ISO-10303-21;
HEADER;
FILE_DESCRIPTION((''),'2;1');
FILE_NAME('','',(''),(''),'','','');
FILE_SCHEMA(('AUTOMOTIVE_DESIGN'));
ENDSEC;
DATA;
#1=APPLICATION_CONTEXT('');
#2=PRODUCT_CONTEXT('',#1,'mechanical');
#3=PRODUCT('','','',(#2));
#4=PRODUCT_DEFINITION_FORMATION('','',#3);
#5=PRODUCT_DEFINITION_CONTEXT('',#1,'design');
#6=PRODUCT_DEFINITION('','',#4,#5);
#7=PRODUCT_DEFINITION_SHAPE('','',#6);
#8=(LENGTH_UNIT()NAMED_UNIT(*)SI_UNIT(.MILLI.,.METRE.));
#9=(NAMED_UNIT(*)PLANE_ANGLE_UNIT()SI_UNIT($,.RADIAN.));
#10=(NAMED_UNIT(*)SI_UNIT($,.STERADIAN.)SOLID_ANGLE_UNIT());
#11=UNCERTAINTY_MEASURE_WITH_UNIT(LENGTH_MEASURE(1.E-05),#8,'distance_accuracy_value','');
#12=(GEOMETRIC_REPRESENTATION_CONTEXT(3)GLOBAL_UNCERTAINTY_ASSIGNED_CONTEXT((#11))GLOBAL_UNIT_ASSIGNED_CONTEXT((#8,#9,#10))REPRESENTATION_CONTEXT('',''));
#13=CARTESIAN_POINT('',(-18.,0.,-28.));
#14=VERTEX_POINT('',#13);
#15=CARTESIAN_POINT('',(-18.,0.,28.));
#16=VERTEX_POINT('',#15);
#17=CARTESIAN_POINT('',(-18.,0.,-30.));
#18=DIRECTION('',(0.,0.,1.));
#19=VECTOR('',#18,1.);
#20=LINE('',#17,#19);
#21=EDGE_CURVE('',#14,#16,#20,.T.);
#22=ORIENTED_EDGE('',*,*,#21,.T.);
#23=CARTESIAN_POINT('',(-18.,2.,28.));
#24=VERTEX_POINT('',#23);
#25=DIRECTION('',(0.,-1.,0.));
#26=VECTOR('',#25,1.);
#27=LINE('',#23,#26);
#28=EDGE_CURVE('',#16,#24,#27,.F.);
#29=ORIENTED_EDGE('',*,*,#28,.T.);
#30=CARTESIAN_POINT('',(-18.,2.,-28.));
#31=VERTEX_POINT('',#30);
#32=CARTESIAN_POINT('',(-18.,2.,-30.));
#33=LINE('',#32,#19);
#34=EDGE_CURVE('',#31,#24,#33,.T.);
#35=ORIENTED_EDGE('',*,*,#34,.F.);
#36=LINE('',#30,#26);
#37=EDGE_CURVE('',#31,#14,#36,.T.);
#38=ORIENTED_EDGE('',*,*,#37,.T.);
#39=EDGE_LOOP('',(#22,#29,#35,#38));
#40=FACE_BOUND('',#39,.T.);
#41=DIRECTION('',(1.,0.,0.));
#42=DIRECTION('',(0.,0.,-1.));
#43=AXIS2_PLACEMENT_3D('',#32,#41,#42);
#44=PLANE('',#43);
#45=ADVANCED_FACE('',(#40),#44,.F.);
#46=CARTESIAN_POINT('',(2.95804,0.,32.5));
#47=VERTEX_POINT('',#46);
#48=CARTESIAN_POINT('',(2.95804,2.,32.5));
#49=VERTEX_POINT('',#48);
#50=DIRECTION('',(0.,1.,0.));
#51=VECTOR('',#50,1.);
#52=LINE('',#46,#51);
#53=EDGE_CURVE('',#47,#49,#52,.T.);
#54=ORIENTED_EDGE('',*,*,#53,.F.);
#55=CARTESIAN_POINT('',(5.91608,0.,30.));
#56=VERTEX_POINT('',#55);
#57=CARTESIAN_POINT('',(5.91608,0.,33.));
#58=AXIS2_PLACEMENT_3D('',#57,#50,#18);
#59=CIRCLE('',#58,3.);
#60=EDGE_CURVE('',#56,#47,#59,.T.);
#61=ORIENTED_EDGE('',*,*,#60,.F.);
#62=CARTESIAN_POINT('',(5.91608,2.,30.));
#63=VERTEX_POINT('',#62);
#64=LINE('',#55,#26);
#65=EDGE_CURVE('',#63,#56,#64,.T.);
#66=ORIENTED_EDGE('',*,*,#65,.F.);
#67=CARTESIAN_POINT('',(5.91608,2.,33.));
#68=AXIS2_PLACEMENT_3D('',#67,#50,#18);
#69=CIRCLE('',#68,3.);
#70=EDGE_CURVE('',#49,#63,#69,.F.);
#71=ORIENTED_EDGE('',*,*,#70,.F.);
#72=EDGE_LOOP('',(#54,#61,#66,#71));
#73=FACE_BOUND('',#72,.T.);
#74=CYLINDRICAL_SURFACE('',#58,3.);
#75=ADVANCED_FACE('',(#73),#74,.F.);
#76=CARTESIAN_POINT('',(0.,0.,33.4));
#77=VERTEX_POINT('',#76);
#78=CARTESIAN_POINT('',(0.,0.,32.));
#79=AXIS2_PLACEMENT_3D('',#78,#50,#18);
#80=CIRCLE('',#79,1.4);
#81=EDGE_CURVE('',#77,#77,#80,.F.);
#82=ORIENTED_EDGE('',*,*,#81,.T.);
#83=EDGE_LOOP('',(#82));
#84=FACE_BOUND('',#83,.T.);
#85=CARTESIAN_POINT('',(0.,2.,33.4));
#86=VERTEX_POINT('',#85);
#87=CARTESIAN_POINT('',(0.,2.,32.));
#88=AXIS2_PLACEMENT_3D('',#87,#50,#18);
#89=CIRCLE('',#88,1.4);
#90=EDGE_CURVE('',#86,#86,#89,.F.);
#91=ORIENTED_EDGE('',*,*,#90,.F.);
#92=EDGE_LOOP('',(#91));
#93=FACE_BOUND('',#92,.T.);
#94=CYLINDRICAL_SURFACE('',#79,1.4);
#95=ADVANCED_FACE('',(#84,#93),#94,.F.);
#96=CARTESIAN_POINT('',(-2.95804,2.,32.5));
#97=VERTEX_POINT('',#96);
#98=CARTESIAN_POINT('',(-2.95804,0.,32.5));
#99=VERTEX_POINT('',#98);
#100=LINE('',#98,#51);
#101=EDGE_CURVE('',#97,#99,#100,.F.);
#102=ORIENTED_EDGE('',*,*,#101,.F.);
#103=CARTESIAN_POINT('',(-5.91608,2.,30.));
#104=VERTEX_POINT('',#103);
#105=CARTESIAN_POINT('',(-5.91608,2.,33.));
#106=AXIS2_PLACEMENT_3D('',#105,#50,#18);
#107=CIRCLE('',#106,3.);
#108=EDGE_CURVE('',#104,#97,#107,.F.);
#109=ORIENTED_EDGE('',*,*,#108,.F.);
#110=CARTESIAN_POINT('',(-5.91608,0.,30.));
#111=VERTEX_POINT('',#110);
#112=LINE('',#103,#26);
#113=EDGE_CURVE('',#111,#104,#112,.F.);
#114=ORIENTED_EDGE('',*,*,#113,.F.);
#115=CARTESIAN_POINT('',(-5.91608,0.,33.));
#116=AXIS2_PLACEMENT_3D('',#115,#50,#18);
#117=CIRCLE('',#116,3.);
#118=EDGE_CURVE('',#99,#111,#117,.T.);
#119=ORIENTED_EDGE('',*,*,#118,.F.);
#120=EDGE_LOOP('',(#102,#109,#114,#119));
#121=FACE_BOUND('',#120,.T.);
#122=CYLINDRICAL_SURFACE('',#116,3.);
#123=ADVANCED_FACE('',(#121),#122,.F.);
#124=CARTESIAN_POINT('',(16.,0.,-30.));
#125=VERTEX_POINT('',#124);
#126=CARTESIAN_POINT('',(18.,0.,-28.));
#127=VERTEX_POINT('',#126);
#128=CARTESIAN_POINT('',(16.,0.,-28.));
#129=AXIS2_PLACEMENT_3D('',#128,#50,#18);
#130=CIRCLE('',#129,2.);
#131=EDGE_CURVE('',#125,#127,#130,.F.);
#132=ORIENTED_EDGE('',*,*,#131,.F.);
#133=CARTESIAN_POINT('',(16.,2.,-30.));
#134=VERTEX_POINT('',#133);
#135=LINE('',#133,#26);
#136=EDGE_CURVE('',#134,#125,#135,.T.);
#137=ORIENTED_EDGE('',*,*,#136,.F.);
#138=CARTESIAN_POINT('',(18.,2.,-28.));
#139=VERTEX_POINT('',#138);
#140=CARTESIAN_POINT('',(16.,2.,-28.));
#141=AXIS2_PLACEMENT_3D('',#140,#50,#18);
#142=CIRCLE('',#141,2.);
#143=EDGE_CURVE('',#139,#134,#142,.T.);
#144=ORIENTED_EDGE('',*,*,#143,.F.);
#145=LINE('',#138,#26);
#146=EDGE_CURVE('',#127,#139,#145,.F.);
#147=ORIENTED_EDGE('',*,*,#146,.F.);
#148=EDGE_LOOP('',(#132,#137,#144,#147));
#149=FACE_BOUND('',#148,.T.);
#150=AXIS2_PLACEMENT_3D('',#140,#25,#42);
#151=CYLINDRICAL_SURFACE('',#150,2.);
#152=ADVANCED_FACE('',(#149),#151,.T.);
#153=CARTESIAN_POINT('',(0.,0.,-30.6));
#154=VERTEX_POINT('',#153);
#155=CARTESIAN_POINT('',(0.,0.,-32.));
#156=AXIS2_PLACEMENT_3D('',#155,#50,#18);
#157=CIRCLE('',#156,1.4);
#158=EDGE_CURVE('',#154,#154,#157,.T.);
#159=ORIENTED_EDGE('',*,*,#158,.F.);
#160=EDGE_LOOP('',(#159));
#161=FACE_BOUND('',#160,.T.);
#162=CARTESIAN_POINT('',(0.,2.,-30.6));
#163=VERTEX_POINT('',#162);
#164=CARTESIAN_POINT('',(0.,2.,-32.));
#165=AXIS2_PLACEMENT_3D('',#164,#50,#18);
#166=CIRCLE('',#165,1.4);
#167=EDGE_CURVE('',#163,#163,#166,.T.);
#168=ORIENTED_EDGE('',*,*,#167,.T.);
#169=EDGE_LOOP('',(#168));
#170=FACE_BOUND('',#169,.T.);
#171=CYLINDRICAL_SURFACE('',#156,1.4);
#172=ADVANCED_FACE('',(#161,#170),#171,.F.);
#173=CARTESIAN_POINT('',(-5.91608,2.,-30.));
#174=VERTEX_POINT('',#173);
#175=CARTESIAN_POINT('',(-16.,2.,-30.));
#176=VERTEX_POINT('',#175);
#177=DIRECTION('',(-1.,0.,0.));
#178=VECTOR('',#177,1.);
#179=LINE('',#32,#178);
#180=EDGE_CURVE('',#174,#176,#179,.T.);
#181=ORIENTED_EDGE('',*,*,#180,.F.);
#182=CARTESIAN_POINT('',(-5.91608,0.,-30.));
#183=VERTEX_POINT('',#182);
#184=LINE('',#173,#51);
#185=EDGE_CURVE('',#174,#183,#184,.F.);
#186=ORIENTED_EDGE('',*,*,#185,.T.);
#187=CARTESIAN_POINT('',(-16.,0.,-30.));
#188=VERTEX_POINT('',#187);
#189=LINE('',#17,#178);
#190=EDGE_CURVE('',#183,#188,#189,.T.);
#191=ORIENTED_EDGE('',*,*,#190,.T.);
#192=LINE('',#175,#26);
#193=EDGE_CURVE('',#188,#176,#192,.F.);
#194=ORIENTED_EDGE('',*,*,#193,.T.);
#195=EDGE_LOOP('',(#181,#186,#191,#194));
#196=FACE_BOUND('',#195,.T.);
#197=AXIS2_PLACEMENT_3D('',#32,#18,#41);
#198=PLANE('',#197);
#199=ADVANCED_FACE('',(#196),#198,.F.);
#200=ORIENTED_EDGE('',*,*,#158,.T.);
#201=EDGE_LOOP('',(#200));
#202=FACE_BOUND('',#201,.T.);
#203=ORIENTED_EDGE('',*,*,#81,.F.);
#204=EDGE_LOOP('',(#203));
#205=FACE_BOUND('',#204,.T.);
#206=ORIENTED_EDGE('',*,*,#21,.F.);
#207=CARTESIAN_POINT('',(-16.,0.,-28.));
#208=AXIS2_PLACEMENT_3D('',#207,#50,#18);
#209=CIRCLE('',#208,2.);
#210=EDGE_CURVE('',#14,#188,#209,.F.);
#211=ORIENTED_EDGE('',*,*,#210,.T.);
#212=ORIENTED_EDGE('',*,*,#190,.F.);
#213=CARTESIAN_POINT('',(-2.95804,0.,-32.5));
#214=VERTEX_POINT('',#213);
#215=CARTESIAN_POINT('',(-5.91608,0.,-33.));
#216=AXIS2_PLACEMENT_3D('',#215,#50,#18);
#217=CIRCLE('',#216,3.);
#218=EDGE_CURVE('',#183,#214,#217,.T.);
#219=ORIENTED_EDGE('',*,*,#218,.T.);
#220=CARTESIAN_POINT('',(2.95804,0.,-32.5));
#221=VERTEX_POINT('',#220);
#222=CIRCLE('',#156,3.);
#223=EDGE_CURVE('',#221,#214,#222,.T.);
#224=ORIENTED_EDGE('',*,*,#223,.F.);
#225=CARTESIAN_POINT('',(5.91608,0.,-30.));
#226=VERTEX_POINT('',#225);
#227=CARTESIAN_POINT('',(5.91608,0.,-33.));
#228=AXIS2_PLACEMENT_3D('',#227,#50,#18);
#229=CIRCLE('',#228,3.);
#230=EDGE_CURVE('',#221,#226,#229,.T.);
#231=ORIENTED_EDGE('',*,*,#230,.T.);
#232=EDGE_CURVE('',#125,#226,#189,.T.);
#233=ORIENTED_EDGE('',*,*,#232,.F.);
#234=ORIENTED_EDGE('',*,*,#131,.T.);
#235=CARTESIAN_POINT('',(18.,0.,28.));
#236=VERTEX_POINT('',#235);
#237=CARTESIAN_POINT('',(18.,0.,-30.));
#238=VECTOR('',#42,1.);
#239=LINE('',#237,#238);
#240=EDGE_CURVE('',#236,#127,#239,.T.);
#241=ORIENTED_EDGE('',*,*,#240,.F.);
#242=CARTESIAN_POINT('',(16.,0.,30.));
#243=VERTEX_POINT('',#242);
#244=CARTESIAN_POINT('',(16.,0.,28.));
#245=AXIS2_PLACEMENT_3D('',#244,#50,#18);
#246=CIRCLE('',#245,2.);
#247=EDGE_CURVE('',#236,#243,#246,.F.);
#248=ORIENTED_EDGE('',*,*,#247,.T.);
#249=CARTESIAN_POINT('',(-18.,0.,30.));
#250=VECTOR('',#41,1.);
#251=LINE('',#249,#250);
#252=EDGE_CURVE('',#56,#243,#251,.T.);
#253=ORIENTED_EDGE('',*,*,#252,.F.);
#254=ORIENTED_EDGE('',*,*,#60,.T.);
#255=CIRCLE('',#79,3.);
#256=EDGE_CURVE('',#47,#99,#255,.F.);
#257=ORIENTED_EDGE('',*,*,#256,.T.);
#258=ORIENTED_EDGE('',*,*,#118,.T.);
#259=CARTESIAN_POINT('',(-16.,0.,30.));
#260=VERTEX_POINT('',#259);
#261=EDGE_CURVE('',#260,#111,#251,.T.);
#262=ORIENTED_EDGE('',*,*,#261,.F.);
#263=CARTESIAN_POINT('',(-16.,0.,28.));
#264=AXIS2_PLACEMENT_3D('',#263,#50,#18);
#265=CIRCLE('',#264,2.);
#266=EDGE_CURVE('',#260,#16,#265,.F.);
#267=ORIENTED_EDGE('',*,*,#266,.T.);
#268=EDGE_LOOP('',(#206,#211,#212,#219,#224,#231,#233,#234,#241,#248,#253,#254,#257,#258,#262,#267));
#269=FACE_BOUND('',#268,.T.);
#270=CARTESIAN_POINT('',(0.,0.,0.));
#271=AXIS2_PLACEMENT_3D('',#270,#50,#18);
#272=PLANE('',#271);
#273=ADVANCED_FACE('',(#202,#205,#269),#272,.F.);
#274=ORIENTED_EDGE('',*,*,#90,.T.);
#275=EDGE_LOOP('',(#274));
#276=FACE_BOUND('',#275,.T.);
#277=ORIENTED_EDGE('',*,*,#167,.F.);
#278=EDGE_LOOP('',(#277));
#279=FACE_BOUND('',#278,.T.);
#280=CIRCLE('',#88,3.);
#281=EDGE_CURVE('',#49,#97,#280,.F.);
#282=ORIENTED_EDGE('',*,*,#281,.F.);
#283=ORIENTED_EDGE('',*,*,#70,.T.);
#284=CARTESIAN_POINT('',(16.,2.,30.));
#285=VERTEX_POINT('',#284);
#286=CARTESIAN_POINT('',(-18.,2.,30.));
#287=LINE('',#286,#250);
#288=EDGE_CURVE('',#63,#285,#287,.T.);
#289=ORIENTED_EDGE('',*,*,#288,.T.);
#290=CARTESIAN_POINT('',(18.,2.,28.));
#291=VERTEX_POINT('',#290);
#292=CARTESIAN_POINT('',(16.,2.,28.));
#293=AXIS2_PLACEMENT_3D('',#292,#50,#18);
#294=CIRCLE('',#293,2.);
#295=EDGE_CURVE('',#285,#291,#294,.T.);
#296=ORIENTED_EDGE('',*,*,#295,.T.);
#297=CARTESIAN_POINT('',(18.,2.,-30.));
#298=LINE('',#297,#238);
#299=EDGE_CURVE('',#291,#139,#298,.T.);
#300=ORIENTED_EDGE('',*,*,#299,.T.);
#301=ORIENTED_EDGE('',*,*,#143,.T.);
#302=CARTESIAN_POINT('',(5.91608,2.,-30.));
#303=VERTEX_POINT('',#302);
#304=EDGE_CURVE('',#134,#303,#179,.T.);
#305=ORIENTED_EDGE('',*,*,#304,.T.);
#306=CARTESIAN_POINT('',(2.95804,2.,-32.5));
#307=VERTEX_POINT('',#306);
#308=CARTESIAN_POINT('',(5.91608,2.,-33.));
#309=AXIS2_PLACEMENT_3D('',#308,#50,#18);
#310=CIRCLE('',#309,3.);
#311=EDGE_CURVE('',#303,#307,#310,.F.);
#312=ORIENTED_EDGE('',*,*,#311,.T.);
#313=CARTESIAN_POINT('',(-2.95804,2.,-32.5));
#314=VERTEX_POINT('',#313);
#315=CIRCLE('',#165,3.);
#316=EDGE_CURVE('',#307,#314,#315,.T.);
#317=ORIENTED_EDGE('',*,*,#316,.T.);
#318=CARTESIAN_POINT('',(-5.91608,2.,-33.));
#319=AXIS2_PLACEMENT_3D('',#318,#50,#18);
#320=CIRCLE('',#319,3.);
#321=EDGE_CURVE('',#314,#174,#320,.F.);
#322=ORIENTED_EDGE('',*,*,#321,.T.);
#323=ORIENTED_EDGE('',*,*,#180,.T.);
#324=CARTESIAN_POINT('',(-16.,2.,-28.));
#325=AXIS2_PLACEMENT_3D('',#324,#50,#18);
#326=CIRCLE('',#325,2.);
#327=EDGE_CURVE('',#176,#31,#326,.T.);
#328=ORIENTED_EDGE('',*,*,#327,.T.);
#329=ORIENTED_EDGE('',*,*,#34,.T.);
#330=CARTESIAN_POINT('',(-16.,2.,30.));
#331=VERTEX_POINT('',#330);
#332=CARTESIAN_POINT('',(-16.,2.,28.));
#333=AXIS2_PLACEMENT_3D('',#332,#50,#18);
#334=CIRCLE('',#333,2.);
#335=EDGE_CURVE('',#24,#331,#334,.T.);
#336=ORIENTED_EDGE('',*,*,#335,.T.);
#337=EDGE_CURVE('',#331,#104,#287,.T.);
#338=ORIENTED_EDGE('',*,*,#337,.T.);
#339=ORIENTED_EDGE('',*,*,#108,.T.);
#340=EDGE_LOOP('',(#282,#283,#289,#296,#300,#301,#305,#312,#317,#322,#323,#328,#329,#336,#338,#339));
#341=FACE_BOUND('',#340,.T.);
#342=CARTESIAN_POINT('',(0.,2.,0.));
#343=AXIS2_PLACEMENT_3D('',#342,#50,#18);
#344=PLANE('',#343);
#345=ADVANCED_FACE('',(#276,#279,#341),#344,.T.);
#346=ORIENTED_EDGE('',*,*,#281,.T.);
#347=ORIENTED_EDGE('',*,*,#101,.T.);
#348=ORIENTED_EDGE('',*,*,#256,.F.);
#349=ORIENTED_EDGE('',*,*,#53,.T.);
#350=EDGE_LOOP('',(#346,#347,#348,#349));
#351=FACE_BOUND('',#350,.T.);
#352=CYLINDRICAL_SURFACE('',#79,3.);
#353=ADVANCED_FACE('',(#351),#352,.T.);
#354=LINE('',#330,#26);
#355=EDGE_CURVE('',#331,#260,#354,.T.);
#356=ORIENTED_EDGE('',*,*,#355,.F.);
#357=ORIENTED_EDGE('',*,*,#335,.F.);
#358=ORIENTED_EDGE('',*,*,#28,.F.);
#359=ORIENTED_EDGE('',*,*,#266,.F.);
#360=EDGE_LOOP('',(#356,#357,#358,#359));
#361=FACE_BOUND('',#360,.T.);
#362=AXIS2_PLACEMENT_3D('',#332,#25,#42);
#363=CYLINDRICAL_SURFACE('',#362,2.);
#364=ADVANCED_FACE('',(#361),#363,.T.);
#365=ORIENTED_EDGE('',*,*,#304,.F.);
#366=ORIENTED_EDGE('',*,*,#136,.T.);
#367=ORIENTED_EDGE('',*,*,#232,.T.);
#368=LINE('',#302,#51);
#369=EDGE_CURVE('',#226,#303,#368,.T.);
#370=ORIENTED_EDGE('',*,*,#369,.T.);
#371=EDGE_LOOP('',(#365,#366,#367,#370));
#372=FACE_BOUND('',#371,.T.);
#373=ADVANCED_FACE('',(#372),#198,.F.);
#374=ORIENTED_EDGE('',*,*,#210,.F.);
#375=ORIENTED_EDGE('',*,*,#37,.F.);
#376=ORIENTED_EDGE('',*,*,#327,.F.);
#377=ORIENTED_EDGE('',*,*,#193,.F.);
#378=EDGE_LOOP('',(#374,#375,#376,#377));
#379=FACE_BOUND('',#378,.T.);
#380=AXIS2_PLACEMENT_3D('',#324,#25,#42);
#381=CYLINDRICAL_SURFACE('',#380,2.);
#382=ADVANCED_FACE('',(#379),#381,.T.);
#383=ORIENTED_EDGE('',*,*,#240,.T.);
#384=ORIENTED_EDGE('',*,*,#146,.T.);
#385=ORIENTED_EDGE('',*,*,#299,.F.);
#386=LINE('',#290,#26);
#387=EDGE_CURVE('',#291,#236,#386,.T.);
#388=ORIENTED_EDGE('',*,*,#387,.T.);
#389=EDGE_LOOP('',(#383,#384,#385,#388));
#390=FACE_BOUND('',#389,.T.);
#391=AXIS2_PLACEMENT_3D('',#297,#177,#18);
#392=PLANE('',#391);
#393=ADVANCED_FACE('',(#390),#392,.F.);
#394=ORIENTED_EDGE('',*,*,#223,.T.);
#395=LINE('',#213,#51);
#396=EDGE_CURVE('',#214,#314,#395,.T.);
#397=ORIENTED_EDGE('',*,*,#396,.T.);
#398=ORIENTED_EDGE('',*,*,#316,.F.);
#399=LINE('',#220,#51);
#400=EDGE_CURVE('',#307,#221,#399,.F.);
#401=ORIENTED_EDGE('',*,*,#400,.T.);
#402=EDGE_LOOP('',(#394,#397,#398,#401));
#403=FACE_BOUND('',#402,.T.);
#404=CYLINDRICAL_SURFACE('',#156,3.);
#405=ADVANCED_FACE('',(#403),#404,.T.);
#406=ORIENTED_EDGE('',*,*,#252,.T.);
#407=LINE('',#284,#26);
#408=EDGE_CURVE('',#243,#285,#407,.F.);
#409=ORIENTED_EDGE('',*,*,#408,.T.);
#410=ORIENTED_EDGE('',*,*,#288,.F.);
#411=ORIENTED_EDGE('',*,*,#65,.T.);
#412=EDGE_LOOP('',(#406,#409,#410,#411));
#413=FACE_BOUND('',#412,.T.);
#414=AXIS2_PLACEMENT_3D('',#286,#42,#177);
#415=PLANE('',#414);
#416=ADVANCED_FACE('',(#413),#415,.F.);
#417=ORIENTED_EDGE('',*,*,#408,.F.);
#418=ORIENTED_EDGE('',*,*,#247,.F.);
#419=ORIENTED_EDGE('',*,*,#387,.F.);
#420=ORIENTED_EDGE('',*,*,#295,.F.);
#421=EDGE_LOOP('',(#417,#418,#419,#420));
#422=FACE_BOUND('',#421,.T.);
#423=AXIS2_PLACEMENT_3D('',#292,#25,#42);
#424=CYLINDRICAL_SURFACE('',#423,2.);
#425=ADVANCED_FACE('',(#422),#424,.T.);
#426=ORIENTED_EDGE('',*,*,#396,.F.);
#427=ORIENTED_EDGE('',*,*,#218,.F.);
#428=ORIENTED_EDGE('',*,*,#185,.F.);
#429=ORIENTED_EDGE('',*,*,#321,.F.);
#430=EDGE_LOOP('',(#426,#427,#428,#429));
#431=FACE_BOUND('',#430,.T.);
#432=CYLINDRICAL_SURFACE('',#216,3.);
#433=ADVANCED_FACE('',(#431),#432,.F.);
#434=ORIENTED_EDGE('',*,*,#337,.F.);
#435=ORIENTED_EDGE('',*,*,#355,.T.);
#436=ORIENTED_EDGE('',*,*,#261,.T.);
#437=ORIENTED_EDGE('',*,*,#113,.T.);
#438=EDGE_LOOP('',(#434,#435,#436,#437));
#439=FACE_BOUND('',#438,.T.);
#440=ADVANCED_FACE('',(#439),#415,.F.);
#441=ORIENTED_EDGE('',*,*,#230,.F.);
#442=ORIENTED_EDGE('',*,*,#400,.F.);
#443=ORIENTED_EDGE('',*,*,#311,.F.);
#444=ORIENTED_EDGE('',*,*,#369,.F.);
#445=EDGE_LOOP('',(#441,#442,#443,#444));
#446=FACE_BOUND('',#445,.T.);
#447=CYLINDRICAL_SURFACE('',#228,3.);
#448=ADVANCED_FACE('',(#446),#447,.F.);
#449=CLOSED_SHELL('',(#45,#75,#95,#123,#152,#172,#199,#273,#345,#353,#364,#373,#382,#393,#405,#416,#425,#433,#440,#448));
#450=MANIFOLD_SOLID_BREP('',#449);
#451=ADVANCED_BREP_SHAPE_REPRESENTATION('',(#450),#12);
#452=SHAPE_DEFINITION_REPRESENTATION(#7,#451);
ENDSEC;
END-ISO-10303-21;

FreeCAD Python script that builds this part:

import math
import FreeCAD as App
import Part
import Sketcher


def edges_at(feature, points):
    """Names of the edges that pass closest to the given points."""
    edges = feature.Shape.Edges
    near = lambda p: min(range(len(edges)), key=lambda i: edges[i].distToShape(Part.Vertex(*p))[0])
    return sorted({f"Edge{near(p) + 1}" for p in points})


def add_polygon(sketch, points):
    """Adds a closed chain of lines whose ends are joined by coincident constraints."""
    first, n = sketch.GeometryCount, len(points)
    for a, b in zip(points, points[1:] + points[:1]):
        sketch.addGeometry(Part.LineSegment(App.Vector(*a, 0), App.Vector(*b, 0)), False)
    for i in range(n):
        sketch.addConstraint(Sketcher.Constraint("Coincident", first + i, 2, first + (i + 1) % n, 1))

doc = App.newDocument("Part")
body = doc.addObject("PartDesign::Body", "Body")

sketch1 = doc.addObject("Sketcher::SketchObject", "Sketch")
body.addObject(sketch1)
sketch1.AttachmentSupport = (doc.XZ_Plane, [""])
sketch1.MapMode = "FlatFace"
add_polygon(sketch1, [(-18, -30), (-18, 30), (18, 30), (18, -30)])
sketch1.addConstraint([
    Sketcher.Constraint("Vertical", 0),
    Sketcher.Constraint("Horizontal", 1),
    Sketcher.Constraint("Vertical", 2),
    Sketcher.Constraint("Horizontal", 3),
    Sketcher.Constraint("Symmetric", 0, 2, 2, 2, -1, 1),
    Sketcher.Constraint("DistanceX", 1, 1, 1, 2, 36.0),
    Sketcher.Constraint("DistanceY", 0, 1, 0, 2, 60.0),
])
pad1 = doc.addObject("PartDesign::Pad", "Pad")
body.addObject(pad1)
pad1.Profile = sketch1
pad1.Length = 2
pad1.Reversed = True
doc.recompute()

fillet = doc.addObject("PartDesign::Fillet", "Fillet")
body.addObject(fillet)
fillet.Base = (pad1, edges_at(pad1, [
    (-18, 1, -30),
    (18, 1, -30),
    (18, 1, 30),
    (-18, 1, 30),
]))
fillet.Radius = 2

sketch2 = doc.addObject("Sketcher::SketchObject", "Sketch001")
body.addObject(sketch2)
sketch2.AttachmentSupport = (doc.XZ_Plane, [""])
sketch2.MapMode = "FlatFace"
sketch2.AttachmentOffset = App.Placement(App.Vector(0, 0, -2), App.Rotation())
sketch2.addGeometry([
    Part.ArcOfCircle(Part.Circle(App.Vector(0, -32, 0), App.Vector(0, 0, 1), 3), math.radians(0), math.radians(42)),
    Part.ArcOfCircle(Part.Circle(App.Vector(0, -32, 0), App.Vector(0, 0, 1), 3), math.radians(138), math.radians(360)),
    Part.LineSegment(App.Vector(-2.2, -30, 0), App.Vector(2.2, -30, 0)),
    Part.Circle(App.Vector(0, -32, 0), App.Vector(0, 0, 1), 1.4),
    Part.ArcOfCircle(Part.Circle(App.Vector(0, 32, 0), App.Vector(0, 0, 1), 3), math.radians(0), math.radians(222)),
    Part.ArcOfCircle(Part.Circle(App.Vector(0, 32, 0), App.Vector(0, 0, 1), 3), math.radians(-42), math.radians(0)),
    Part.LineSegment(App.Vector(2.2, 30, 0), App.Vector(-2.2, 30, 0)),
    Part.Circle(App.Vector(0, 32, 0), App.Vector(0, 0, 1), 1.4),
], False)
sketch2.addConstraint([
    Sketcher.Constraint("Tangent", 0, 1, 1, 2),
    Sketcher.Constraint("Coincident", 1, 1, 2, 1),
    Sketcher.Constraint("Coincident", 2, 2, 0, 2),
    Sketcher.Constraint("Tangent", 4, 1, 5, 2),
    Sketcher.Constraint("Coincident", 5, 1, 6, 1),
    Sketcher.Constraint("Coincident", 6, 2, 4, 2),
    Sketcher.Constraint("Horizontal", 2),
    Sketcher.Constraint("Horizontal", 6),
    Sketcher.Constraint("Coincident", 3, 3, 0, 3),
    Sketcher.Constraint("Coincident", 7, 3, 4, 3),
    Sketcher.Constraint("Equal", 0, 1),
    Sketcher.Constraint("Equal", 1, 4),
    Sketcher.Constraint("Equal", 4, 5),
    Sketcher.Constraint("Equal", 3, 7),
    Sketcher.Constraint("Symmetric", 0, 3, 4, 3, -1, 1),
    Sketcher.Constraint("Symmetric", 0, 1, 4, 1, -1),
    Sketcher.Constraint("Horizontal", 3, 3, 0, 1),
    Sketcher.Constraint("Vertical", 2, 2, 5, 1),
    Sketcher.Constraint("Radius", 0, 3.0),
    Sketcher.Constraint("Diameter", 3, 2.8),
    Sketcher.Constraint("DistanceY", 0, 3, -1, 1, 32.0),
    Sketcher.Constraint("DistanceY", 1, 1, -1, 1, 30.0),
])
pad2 = doc.addObject("PartDesign::Pad", "Pad001")
body.addObject(pad2)
pad2.Profile = sketch2
pad2.Length = 2
doc.recompute()

fillet2 = doc.addObject("PartDesign::Fillet", "Fillet001")
body.addObject(fillet2)
fillet2.Base = (pad2, edges_at(pad2, [
    (2.236, 1, -30),
    (-2.236, 1, -30),
    (2.236, 1, 30),
    (-2.236, 1, 30),
]))
fillet2.Radius = 3

doc.recompute()
